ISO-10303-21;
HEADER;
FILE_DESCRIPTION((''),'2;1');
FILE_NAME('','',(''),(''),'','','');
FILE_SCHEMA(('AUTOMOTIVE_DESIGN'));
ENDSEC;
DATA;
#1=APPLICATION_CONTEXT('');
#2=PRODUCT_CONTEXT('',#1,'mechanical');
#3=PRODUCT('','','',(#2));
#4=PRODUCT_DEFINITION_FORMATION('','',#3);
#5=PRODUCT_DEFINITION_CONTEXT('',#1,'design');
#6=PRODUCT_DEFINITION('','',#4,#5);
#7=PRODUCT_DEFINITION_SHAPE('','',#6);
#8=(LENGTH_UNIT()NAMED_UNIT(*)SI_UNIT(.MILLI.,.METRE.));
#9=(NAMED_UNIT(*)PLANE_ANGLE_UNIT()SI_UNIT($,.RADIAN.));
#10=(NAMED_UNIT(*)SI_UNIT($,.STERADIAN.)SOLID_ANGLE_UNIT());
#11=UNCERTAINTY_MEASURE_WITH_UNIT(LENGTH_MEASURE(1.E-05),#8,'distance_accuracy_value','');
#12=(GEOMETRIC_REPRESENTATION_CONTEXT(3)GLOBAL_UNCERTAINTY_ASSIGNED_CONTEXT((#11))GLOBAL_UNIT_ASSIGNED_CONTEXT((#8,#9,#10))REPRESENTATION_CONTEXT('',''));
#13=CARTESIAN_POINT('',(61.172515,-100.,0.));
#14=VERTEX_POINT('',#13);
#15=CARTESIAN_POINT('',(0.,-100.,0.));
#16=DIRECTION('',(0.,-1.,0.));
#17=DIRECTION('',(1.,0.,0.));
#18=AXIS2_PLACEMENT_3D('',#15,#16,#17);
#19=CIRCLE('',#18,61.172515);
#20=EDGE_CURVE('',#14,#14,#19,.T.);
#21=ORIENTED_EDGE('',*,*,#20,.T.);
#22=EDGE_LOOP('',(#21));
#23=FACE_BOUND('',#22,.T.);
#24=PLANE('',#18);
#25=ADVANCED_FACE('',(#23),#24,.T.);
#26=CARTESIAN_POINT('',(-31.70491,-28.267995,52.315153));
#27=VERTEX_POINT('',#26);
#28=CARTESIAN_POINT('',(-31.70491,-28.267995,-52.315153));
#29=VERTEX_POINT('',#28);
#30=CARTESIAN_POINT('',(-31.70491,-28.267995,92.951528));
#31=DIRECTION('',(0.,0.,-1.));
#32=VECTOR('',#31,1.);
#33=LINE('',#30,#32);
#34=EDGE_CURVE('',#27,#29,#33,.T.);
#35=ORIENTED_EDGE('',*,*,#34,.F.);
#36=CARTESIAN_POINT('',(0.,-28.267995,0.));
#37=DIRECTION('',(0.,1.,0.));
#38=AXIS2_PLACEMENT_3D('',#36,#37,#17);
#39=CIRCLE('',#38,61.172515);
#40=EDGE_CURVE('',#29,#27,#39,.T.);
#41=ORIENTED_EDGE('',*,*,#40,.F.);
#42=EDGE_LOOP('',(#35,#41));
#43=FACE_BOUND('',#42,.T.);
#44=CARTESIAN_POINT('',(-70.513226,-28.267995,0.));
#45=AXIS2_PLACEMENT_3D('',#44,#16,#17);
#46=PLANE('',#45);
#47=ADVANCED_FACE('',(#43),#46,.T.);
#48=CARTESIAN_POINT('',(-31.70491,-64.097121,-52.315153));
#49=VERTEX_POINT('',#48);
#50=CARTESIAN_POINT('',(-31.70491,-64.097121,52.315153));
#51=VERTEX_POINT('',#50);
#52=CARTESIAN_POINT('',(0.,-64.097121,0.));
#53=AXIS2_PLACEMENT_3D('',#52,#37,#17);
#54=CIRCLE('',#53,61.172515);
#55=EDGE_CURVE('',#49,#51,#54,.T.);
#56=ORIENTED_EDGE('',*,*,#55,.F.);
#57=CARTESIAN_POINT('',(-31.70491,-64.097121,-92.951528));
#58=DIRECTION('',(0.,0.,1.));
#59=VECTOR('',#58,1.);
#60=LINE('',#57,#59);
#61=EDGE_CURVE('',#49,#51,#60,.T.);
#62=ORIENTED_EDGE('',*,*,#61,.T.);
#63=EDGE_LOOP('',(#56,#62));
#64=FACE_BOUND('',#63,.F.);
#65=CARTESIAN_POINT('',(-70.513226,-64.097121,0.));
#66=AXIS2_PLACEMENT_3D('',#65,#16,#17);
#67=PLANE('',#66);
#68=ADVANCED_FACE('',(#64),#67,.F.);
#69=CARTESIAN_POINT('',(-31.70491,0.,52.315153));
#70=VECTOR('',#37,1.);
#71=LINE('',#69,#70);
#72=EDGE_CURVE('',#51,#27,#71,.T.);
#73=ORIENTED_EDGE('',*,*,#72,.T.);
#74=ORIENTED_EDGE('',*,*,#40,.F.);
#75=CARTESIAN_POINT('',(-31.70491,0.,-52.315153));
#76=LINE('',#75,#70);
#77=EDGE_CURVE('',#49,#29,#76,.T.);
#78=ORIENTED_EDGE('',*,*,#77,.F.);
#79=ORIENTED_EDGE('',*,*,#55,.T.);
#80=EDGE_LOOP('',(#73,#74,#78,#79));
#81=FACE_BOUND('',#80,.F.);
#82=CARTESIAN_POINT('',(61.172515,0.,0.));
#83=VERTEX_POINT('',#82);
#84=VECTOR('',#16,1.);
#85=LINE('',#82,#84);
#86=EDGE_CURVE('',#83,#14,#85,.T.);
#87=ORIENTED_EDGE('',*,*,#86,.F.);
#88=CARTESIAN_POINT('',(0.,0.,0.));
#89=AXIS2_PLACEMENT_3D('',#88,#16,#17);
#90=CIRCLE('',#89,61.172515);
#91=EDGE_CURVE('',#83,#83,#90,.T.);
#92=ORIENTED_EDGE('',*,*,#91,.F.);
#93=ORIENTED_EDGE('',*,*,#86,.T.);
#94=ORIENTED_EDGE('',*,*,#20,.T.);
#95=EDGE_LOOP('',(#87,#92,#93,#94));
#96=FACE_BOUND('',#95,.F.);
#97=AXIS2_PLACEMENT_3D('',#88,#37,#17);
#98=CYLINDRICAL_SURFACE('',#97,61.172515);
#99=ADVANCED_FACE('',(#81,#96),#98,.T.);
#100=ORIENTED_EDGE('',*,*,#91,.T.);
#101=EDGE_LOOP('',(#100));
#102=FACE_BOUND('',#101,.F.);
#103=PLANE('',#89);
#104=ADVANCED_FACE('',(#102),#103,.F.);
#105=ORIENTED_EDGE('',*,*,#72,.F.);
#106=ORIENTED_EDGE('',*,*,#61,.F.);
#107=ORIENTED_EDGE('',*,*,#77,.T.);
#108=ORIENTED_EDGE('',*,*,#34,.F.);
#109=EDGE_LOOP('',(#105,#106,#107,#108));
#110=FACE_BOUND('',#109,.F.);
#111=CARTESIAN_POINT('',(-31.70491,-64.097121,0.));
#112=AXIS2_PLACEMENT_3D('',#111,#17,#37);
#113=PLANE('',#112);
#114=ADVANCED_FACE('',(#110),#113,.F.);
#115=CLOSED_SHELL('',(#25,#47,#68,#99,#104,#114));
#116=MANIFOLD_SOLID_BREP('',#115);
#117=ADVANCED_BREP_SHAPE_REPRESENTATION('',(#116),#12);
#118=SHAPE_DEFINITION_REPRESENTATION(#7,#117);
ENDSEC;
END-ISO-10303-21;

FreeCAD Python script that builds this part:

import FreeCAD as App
import Part
import Sketcher

V = App.Vector
Q = App.Units.Quantity


def add_polygon(sketch, points):
    """Adds a closed chain of lines whose ends are joined by coincident constraints."""
    first, n = sketch.GeometryCount, len(points)
    for a, b in zip(points, points[1:] + points[:1]):
        sketch.addGeometry(Part.LineSegment(App.Vector(*a, 0), App.Vector(*b, 0)), False)
    for i in range(n):
        sketch.addConstraint(Sketcher.Constraint("Coincident", first + i, 2, first + (i + 1) % n, 1))

doc = App.newDocument("Part")
body = doc.addObject("PartDesign::Body", "Body")

# Sketch on XZ plane
sketch1 = body.newObject("Sketcher::SketchObject", "Sketch")
sketch1.AttachmentSupport = (doc.getObject("XZ_Plane"), [""])
sketch1.MapMode = "FlatFace"
sketch1.addGeometry(Part.Circle(V(0, 0, 0), V(0, 0, 1), 61), False)
sketch1.addConstraint(Sketcher.Constraint("Coincident", 0, 3, -1, 1))
sketch1.addConstraint(Sketcher.Constraint("Diameter", 0, Q("122.34503 mm")))
pad1 = body.newObject("PartDesign::Pad", "Pad")
pad1.Profile = sketch1
pad1.Length = 100

# Sketch on XY plane
sketch2 = body.newObject("Sketcher::SketchObject", "Sketch001")
sketch2.AttachmentSupport = (doc.getObject("XY_Plane"), [""])
sketch2.MapMode = "FlatFace"
add_polygon(sketch2, [(-71, -28), (-71, -64), (-32, -64), (-32, -28)])  # lines 0-3
sketch2.addConstraint(Sketcher.Constraint("Vertical", 0))
sketch2.addConstraint(Sketcher.Constraint("Horizontal", 1))
sketch2.addConstraint(Sketcher.Constraint("Vertical", 2))
sketch2.addConstraint(Sketcher.Constraint("Horizontal", 3))
sketch2.addConstraint(Sketcher.Constraint("DistanceX", 1, 1, 1, 2, Q("38.808316 mm")))
sketch2.addConstraint(Sketcher.Constraint("DistanceY", 0, 2, 0, 1, Q("35.829126 mm")))
sketch2.addConstraint(Sketcher.Constraint("DistanceY", 0, 2, -1, 1, Q("64.097121 mm")))
sketch2.addConstraint(Sketcher.Constraint("DistanceX", 1, 2, -1, 1, Q("31.70491 mm")))
pocket1 = body.newObject("PartDesign::Pocket", "Pocket")
pocket1.Profile = sketch2
pocket1.Length = 185.903056
pocket1.Midplane = True

doc.recompute()
